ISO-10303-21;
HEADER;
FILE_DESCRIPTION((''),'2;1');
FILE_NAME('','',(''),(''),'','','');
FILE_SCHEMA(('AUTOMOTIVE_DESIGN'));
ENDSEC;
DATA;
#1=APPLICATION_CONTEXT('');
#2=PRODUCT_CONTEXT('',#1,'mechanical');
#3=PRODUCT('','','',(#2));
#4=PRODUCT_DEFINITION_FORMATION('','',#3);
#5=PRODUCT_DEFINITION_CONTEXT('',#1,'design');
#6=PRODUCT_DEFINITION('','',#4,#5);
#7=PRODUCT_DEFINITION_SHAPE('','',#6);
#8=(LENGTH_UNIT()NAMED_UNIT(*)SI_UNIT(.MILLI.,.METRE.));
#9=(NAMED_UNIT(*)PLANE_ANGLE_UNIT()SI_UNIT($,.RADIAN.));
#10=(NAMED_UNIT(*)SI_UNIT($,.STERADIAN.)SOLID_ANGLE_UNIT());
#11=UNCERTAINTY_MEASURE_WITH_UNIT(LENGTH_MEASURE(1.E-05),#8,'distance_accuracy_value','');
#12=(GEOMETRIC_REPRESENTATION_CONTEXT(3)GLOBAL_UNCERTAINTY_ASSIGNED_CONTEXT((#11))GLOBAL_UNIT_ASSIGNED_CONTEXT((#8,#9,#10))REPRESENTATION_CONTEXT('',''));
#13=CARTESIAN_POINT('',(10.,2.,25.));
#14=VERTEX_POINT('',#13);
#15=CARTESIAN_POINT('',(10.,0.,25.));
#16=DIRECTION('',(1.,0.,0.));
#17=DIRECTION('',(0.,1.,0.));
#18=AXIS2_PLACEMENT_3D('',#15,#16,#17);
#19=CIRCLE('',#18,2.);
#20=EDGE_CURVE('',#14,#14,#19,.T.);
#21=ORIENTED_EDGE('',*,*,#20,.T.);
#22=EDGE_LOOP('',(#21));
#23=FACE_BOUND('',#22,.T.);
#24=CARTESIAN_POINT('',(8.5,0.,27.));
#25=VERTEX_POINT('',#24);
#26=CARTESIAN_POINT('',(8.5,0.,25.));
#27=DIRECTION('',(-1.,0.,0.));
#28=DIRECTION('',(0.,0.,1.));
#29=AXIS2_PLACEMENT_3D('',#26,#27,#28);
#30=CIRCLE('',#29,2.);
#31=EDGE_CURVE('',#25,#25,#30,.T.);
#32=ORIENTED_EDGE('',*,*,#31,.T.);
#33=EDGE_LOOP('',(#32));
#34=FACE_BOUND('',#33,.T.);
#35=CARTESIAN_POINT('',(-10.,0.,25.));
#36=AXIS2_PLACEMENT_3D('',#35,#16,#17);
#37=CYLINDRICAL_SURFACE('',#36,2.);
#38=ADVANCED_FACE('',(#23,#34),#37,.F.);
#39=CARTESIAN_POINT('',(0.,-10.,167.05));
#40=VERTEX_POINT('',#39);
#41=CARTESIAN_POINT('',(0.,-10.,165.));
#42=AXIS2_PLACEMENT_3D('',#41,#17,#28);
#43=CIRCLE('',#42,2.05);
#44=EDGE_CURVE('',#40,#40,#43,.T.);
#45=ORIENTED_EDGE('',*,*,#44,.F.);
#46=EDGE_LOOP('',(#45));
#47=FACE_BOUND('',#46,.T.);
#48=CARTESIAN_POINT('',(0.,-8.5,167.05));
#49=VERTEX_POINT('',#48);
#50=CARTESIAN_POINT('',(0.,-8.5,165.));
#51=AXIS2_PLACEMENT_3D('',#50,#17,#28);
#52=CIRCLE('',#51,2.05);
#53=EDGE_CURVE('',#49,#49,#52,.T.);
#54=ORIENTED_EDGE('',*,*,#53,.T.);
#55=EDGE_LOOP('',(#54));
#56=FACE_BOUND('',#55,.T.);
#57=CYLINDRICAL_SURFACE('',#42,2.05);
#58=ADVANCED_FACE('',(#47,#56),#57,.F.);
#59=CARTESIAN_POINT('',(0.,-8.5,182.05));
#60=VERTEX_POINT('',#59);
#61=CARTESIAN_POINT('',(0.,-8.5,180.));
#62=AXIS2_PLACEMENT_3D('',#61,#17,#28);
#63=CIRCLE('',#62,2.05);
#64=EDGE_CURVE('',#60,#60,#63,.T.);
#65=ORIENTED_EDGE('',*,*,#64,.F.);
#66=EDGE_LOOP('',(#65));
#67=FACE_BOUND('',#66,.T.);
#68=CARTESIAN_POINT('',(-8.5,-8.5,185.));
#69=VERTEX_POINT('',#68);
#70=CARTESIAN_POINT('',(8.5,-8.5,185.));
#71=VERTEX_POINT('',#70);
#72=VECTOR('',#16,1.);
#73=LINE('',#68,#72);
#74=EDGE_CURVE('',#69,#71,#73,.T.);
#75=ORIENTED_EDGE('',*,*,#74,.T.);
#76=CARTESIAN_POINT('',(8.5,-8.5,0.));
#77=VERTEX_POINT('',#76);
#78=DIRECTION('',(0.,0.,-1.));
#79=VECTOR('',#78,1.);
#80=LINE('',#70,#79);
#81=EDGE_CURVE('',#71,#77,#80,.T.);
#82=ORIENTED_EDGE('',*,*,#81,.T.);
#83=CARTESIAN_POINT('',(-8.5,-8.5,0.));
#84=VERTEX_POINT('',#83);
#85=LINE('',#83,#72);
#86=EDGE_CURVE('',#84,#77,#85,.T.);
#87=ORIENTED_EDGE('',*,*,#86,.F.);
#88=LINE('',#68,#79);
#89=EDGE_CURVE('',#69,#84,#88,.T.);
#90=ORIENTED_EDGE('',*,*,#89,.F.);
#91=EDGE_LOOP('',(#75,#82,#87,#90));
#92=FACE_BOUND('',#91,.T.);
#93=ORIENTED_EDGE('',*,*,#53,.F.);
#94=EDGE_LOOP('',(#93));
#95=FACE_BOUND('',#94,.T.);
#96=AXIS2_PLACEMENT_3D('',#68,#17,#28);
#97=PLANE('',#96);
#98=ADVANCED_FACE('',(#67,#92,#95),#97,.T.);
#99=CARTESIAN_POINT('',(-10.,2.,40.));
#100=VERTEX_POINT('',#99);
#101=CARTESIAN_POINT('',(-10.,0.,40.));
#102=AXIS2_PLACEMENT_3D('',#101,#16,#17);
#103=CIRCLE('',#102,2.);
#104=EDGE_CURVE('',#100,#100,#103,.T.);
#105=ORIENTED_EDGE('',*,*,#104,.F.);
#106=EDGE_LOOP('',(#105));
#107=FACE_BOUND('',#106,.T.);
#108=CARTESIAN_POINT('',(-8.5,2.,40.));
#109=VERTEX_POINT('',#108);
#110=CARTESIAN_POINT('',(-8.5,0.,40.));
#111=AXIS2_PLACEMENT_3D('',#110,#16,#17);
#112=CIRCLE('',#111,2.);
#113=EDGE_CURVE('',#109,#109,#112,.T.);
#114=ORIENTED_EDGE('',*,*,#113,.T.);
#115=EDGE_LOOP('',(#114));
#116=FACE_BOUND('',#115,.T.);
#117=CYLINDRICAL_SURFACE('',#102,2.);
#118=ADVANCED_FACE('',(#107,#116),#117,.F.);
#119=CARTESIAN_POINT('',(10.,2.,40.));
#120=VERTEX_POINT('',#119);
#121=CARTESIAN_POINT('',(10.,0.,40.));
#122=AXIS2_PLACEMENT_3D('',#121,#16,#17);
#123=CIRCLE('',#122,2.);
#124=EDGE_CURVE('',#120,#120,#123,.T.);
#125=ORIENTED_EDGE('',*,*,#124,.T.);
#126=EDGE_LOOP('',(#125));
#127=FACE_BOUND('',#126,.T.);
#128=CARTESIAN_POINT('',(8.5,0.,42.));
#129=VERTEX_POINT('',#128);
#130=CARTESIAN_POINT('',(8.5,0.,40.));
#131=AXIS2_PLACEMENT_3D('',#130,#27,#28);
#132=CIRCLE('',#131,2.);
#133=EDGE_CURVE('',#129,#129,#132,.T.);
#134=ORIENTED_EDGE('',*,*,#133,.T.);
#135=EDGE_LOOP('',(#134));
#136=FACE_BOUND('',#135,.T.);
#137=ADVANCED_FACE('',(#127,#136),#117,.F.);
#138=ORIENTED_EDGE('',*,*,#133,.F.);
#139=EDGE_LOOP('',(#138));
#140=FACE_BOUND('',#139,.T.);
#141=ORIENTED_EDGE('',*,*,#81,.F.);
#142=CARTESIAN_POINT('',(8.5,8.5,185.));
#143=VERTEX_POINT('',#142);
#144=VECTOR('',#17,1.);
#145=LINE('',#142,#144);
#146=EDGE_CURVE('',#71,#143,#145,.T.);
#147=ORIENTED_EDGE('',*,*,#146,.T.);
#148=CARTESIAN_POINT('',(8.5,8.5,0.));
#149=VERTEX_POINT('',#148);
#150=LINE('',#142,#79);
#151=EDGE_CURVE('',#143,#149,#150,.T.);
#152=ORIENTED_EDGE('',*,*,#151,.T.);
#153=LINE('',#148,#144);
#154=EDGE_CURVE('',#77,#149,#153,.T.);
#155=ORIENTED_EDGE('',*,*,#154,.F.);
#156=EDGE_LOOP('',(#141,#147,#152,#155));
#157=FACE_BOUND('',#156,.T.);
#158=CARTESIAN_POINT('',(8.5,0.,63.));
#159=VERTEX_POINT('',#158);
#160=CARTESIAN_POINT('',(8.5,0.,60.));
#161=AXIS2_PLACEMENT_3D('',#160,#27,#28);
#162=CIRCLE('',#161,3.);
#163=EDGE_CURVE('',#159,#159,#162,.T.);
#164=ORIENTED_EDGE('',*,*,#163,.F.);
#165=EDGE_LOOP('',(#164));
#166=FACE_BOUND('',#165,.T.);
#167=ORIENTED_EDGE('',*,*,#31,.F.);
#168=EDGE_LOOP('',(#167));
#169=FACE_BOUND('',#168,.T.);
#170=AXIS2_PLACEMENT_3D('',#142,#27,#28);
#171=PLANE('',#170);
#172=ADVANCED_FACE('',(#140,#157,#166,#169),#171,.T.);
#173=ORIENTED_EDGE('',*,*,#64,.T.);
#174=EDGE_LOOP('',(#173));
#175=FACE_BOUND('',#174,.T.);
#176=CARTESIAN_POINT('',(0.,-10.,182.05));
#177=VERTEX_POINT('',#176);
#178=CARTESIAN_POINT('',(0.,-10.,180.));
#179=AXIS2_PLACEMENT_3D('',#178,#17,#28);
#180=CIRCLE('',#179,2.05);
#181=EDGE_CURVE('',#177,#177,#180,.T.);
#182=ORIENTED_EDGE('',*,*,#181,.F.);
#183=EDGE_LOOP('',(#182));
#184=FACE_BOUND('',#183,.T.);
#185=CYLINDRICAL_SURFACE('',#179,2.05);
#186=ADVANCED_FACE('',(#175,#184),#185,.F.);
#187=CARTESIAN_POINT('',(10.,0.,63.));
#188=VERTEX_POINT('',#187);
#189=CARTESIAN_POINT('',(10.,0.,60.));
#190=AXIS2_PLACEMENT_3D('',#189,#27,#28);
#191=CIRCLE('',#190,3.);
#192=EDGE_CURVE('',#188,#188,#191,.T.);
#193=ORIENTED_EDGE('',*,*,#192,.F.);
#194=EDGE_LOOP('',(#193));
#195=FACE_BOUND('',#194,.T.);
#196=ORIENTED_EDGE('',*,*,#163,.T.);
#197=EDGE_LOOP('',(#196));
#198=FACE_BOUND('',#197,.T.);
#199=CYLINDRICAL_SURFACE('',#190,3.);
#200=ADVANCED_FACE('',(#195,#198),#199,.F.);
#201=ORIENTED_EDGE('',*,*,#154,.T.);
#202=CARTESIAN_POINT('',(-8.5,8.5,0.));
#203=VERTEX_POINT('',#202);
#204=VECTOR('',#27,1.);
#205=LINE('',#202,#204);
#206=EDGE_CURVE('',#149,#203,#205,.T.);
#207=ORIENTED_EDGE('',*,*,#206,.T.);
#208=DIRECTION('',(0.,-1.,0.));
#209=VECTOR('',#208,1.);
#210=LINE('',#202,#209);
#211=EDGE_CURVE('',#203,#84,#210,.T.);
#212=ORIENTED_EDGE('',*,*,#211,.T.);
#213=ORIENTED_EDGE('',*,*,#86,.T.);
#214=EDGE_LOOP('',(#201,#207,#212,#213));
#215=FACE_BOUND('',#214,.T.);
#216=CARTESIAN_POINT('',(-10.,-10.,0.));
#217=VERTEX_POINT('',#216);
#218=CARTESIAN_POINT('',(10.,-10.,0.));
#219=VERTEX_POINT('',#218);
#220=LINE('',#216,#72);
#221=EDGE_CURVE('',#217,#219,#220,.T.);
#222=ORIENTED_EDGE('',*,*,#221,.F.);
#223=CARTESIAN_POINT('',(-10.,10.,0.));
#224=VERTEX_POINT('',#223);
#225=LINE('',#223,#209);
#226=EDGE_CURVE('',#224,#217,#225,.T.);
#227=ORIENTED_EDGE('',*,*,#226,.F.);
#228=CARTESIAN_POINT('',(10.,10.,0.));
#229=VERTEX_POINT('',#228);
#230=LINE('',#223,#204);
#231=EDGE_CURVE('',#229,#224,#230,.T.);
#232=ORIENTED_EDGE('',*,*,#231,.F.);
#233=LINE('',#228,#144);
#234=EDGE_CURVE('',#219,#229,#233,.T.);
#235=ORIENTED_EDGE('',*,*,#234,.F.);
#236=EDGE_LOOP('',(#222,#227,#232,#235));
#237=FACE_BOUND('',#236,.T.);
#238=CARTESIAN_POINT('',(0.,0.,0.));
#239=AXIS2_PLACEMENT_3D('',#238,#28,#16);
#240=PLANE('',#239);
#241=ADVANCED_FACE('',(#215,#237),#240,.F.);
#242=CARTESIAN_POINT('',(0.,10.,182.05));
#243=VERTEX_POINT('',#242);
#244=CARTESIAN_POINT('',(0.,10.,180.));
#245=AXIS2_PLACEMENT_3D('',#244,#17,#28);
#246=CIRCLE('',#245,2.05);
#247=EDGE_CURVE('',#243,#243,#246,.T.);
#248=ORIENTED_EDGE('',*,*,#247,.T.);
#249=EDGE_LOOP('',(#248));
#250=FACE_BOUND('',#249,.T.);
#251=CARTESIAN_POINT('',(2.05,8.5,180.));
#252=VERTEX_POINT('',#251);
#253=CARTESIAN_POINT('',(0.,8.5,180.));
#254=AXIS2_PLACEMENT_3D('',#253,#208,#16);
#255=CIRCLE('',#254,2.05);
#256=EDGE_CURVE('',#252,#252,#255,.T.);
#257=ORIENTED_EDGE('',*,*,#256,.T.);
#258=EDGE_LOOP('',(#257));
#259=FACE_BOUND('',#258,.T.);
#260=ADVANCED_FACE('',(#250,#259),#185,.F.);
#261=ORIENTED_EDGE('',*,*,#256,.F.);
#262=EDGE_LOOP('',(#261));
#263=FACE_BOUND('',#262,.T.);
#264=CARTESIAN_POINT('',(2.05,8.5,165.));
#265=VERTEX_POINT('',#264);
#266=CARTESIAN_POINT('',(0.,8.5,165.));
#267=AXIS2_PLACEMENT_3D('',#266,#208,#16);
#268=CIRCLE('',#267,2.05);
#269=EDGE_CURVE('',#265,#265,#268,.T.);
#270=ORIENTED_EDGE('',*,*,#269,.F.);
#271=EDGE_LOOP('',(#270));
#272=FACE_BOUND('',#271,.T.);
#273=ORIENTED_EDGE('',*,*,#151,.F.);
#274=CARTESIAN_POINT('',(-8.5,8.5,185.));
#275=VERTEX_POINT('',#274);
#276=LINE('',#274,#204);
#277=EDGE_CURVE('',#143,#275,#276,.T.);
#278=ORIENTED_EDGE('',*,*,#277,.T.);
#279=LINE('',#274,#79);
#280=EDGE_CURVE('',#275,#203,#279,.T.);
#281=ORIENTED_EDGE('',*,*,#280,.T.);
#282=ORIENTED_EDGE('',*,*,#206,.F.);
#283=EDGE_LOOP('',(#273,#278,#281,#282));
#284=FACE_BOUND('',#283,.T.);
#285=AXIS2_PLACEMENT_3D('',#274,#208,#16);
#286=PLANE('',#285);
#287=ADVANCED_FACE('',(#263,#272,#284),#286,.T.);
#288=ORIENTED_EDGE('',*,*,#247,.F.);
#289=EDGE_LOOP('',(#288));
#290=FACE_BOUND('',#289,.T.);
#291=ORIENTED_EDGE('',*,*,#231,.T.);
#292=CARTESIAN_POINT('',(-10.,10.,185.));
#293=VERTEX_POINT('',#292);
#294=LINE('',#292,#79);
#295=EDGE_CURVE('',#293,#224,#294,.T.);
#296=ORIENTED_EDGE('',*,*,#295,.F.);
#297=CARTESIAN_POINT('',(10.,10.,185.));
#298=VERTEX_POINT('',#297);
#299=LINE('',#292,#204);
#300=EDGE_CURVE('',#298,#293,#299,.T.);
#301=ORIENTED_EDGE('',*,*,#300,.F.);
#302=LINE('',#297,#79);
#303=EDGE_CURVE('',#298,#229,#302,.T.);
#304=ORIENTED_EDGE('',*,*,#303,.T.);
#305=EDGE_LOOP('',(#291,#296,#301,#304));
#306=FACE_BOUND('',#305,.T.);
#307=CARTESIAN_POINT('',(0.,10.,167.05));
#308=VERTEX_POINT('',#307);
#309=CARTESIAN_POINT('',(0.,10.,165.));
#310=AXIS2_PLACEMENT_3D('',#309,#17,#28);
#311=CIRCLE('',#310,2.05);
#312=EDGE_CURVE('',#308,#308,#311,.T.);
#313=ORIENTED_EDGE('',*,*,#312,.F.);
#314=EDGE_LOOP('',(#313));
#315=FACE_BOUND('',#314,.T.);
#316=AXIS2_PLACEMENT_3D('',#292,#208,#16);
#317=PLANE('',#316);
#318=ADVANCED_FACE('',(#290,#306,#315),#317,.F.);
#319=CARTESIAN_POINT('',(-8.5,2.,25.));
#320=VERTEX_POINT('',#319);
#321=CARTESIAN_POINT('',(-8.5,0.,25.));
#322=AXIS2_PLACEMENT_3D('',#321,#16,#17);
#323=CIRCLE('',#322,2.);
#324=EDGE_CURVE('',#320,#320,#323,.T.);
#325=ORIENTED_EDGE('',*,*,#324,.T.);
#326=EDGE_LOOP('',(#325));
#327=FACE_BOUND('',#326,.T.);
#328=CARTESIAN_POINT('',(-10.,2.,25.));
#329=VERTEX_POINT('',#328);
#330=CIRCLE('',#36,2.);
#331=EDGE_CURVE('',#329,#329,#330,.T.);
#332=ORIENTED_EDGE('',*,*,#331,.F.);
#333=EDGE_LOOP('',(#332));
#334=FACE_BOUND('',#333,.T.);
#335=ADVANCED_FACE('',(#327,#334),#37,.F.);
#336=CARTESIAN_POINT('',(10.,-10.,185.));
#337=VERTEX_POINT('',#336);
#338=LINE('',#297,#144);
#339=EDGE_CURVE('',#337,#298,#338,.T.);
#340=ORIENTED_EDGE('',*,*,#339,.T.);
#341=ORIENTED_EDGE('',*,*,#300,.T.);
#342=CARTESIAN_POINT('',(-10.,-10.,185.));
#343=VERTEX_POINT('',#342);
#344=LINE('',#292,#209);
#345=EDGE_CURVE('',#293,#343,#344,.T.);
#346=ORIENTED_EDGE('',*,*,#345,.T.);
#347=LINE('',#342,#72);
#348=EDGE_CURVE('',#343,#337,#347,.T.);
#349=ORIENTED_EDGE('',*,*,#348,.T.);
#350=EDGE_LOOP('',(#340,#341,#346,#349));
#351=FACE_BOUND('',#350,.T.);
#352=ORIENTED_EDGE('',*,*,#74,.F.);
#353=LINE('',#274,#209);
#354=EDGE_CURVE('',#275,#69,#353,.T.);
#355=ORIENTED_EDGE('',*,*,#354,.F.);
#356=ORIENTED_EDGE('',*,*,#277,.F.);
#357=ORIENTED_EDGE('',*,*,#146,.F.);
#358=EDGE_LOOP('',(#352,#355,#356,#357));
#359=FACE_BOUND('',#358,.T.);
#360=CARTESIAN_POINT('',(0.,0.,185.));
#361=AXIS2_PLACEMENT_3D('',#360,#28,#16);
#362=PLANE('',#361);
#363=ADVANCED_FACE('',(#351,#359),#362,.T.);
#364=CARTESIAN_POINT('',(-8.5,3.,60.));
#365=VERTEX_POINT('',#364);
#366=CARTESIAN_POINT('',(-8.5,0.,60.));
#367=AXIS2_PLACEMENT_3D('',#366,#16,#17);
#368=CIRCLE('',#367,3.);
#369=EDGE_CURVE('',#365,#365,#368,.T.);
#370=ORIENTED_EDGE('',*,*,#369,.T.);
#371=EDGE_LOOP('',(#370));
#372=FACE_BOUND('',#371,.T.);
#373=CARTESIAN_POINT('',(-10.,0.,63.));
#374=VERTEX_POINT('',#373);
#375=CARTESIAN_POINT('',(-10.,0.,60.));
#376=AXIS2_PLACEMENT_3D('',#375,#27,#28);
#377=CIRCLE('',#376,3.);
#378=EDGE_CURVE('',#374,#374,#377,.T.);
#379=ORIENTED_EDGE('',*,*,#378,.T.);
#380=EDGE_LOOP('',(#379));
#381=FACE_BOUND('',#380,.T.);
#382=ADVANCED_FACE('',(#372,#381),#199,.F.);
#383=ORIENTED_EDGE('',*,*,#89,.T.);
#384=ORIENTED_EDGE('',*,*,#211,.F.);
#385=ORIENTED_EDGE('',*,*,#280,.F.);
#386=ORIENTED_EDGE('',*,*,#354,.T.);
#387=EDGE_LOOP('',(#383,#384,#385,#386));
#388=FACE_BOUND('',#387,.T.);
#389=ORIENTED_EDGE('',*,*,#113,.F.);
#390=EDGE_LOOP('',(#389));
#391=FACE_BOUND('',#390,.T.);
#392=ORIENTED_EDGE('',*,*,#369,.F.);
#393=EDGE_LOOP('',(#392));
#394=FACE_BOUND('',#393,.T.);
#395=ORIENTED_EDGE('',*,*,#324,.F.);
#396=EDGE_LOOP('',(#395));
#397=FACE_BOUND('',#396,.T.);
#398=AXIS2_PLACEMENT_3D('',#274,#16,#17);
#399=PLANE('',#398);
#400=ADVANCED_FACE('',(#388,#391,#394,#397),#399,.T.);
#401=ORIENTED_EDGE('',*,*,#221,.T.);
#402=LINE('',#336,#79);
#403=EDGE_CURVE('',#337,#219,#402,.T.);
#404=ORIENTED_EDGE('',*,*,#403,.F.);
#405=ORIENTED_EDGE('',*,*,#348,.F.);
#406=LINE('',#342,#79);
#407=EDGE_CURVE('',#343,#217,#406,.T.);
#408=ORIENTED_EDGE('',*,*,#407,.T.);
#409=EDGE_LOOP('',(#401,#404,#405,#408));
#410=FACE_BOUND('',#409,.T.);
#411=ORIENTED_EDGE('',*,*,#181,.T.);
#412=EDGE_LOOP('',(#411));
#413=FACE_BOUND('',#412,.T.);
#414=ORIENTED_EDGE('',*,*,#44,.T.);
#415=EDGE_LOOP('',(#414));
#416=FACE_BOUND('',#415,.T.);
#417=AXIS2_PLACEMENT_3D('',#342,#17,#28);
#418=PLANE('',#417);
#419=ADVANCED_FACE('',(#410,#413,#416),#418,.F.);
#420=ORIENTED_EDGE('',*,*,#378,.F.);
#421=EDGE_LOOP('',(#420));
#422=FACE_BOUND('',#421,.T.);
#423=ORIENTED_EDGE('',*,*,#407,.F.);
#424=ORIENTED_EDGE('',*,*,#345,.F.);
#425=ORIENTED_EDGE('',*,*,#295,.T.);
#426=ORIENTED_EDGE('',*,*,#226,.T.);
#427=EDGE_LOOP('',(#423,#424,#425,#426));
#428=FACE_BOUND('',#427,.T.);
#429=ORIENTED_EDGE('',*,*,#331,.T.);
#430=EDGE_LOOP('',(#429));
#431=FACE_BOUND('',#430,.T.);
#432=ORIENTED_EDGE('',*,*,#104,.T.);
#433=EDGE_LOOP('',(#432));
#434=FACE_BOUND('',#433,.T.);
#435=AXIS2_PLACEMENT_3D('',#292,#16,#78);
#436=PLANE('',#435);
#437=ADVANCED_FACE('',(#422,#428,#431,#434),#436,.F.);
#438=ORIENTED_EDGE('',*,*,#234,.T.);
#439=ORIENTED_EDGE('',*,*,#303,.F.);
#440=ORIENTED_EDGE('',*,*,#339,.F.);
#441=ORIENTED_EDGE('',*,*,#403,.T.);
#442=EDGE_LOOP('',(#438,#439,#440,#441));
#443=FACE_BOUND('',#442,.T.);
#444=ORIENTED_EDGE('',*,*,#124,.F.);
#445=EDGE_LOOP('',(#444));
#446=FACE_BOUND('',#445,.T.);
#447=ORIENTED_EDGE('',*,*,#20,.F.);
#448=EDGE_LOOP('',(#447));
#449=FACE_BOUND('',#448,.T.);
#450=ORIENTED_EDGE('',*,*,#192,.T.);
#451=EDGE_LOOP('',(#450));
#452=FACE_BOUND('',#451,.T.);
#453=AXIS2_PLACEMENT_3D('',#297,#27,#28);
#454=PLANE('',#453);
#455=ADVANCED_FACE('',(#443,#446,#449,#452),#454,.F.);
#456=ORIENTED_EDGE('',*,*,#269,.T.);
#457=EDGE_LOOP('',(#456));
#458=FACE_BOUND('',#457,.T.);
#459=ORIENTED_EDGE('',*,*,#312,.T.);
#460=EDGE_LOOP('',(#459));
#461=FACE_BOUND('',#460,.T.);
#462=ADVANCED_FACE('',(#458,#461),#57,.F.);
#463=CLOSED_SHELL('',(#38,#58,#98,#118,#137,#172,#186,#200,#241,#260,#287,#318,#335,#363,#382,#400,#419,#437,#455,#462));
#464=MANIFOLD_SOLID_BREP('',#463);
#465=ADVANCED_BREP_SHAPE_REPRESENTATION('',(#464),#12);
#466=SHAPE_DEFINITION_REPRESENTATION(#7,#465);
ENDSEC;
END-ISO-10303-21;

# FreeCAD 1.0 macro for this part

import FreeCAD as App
import Part
import Sketcher

V = App.Vector
Q = App.Units.Quantity


def add_polygon(sketch, points):
    """Adds a closed chain of lines whose ends are joined by coincident constraints."""
    first, n = sketch.GeometryCount, len(points)
    for a, b in zip(points, points[1:] + points[:1]):
        sketch.addGeometry(Part.LineSegment(App.Vector(*a, 0), App.Vector(*b, 0)), False)
    for i in range(n):
        sketch.addConstraint(Sketcher.Constraint("Coincident", first + i, 2, first + (i + 1) % n, 1))

doc = App.newDocument("Part")
body = doc.addObject("PartDesign::Body", "Body")

# Sketch on XY plane
sketch1 = body.newObject("Sketcher::SketchObject", "Sketch")
sketch1.AttachmentSupport = (doc.getObject("XY_Plane"), [""])
sketch1.MapMode = "FlatFace"
add_polygon(sketch1, [(-10, 10), (-10, -10), (10, -10), (10, 10)])  # lines 0-3
add_polygon(sketch1, [(8.5, -8.5), (-8.5, -8.5), (-8.5, 8.5), (8.5, 8.5)])  # lines 4-7
sketch1.addConstraint([
    Sketcher.Constraint("Vertical", 0),
    Sketcher.Constraint("Horizontal", 1),
    Sketcher.Constraint("Vertical", 2),
    Sketcher.Constraint("Horizontal", 3),
    Sketcher.Constraint("Horizontal", 4),
    Sketcher.Constraint("Vertical", 5),
    Sketcher.Constraint("Horizontal", 6),
    Sketcher.Constraint("Vertical", 7),
    Sketcher.Constraint("Symmetric", 0, 2, 2, 2, -1, 1),
    Sketcher.Constraint("Symmetric", 4, 2, 6, 2, -1, 1),
    Sketcher.Constraint("Equal", 3, 0),
    Sketcher.Constraint("Equal", 6, 5),
    Sketcher.Constraint("DistanceX", 1, 1, 1, 2, Q("20 mm")),
    Sketcher.Constraint("DistanceX", 4, 2, 4, 1, Q("17 mm")),
])
pad1 = body.newObject("PartDesign::Pad", "Pad")
pad1.Profile = sketch1
pad1.Length = 185

# Sketch on XZ plane
sketch2 = body.newObject("Sketcher::SketchObject", "Sketch001")
sketch2.AttachmentSupport = (doc.getObject("XZ_Plane"), [""])
sketch2.MapMode = "FlatFace"
sketch2.AttachmentOffset = App.Placement(V(0, 0, -10), App.Rotation())
sketch2.addGeometry([
    Part.Circle(V(0, 180, 0), V(0, 0, 1), 2.05),
    Part.Circle(V(0, 165, 0), V(0, 0, 1), 2.05),
], False)
sketch2.addConstraint([
    Sketcher.Constraint("Equal", 0, 1),
    Sketcher.Constraint("PointOnObject", 0, 3, -2),
    Sketcher.Constraint("PointOnObject", 1, 3, -2),
    Sketcher.Constraint("Diameter", 0, Q("4.1 mm")),
    Sketcher.Constraint("DistanceY", -1, 1, 0, 3, Q("180 mm")),
    Sketcher.Constraint("DistanceY", -1, 1, 1, 3, Q("165 mm")),
])
pocket1 = body.newObject("PartDesign::Pocket", "Pocket")
pocket1.Profile = sketch2
pocket1.Type = "ThroughAll"
pocket1.Reversed = True

# Sketch on YZ plane
sketch3 = body.newObject("Sketcher::SketchObject", "Sketch002")
sketch3.AttachmentSupport = (doc.getObject("YZ_Plane"), [""])
sketch3.MapMode = "FlatFace"
sketch3.AttachmentOffset = App.Placement(V(0, 0, 10), App.Rotation())
sketch3.addGeometry([
    Part.Circle(V(0, 25, 0), V(0, 0, 1), 2),
    Part.Circle(V(0, 40, 0), V(0, 0, 1), 2),
], False)
sketch3.addConstraint([
    Sketcher.Constraint("Equal", 0, 1),
    Sketcher.Constraint("PointOnObject", 0, 3, -2),
    Sketcher.Constraint("PointOnObject", 1, 3, -2),
    Sketcher.Constraint("Diameter", 0, Q("4 mm")),
    Sketcher.Constraint("DistanceY", -1, 1, 0, 3, Q("25 mm")),
    Sketcher.Constraint("DistanceY", -1, 1, 1, 3, Q("40 mm")),
])
pocket2 = body.newObject("PartDesign::Pocket", "Pocket001")
pocket2.Profile = sketch3
pocket2.Type = "ThroughAll"

# Sketch on YZ plane
sketch4 = body.newObject("Sketcher::SketchObject", "Sketch003")
sketch4.AttachmentSupport = (doc.getObject("YZ_Plane"), [""])
sketch4.MapMode = "FlatFace"
sketch4.AttachmentOffset = App.Placement(V(0, 0, -10), App.Rotation())
sketch4.addGeometry(Part.Circle(V(0, 60, 0), V(0, 0, 1), 3), False)
sketch4.addConstraint([
    Sketcher.Constraint("PointOnObject", 0, 3, -2),
    Sketcher.Constraint("Diameter", 0, Q("6 mm")),
    Sketcher.Constraint("DistanceY", -1, 1, 0, 3, Q("60 mm")),
])
pocket3 = body.newObject("PartDesign::Pocket", "Pocket002")
pocket3.Profile = sketch4
pocket3.Type = "ThroughAll"
pocket3.Reversed = True

doc.recompute()
